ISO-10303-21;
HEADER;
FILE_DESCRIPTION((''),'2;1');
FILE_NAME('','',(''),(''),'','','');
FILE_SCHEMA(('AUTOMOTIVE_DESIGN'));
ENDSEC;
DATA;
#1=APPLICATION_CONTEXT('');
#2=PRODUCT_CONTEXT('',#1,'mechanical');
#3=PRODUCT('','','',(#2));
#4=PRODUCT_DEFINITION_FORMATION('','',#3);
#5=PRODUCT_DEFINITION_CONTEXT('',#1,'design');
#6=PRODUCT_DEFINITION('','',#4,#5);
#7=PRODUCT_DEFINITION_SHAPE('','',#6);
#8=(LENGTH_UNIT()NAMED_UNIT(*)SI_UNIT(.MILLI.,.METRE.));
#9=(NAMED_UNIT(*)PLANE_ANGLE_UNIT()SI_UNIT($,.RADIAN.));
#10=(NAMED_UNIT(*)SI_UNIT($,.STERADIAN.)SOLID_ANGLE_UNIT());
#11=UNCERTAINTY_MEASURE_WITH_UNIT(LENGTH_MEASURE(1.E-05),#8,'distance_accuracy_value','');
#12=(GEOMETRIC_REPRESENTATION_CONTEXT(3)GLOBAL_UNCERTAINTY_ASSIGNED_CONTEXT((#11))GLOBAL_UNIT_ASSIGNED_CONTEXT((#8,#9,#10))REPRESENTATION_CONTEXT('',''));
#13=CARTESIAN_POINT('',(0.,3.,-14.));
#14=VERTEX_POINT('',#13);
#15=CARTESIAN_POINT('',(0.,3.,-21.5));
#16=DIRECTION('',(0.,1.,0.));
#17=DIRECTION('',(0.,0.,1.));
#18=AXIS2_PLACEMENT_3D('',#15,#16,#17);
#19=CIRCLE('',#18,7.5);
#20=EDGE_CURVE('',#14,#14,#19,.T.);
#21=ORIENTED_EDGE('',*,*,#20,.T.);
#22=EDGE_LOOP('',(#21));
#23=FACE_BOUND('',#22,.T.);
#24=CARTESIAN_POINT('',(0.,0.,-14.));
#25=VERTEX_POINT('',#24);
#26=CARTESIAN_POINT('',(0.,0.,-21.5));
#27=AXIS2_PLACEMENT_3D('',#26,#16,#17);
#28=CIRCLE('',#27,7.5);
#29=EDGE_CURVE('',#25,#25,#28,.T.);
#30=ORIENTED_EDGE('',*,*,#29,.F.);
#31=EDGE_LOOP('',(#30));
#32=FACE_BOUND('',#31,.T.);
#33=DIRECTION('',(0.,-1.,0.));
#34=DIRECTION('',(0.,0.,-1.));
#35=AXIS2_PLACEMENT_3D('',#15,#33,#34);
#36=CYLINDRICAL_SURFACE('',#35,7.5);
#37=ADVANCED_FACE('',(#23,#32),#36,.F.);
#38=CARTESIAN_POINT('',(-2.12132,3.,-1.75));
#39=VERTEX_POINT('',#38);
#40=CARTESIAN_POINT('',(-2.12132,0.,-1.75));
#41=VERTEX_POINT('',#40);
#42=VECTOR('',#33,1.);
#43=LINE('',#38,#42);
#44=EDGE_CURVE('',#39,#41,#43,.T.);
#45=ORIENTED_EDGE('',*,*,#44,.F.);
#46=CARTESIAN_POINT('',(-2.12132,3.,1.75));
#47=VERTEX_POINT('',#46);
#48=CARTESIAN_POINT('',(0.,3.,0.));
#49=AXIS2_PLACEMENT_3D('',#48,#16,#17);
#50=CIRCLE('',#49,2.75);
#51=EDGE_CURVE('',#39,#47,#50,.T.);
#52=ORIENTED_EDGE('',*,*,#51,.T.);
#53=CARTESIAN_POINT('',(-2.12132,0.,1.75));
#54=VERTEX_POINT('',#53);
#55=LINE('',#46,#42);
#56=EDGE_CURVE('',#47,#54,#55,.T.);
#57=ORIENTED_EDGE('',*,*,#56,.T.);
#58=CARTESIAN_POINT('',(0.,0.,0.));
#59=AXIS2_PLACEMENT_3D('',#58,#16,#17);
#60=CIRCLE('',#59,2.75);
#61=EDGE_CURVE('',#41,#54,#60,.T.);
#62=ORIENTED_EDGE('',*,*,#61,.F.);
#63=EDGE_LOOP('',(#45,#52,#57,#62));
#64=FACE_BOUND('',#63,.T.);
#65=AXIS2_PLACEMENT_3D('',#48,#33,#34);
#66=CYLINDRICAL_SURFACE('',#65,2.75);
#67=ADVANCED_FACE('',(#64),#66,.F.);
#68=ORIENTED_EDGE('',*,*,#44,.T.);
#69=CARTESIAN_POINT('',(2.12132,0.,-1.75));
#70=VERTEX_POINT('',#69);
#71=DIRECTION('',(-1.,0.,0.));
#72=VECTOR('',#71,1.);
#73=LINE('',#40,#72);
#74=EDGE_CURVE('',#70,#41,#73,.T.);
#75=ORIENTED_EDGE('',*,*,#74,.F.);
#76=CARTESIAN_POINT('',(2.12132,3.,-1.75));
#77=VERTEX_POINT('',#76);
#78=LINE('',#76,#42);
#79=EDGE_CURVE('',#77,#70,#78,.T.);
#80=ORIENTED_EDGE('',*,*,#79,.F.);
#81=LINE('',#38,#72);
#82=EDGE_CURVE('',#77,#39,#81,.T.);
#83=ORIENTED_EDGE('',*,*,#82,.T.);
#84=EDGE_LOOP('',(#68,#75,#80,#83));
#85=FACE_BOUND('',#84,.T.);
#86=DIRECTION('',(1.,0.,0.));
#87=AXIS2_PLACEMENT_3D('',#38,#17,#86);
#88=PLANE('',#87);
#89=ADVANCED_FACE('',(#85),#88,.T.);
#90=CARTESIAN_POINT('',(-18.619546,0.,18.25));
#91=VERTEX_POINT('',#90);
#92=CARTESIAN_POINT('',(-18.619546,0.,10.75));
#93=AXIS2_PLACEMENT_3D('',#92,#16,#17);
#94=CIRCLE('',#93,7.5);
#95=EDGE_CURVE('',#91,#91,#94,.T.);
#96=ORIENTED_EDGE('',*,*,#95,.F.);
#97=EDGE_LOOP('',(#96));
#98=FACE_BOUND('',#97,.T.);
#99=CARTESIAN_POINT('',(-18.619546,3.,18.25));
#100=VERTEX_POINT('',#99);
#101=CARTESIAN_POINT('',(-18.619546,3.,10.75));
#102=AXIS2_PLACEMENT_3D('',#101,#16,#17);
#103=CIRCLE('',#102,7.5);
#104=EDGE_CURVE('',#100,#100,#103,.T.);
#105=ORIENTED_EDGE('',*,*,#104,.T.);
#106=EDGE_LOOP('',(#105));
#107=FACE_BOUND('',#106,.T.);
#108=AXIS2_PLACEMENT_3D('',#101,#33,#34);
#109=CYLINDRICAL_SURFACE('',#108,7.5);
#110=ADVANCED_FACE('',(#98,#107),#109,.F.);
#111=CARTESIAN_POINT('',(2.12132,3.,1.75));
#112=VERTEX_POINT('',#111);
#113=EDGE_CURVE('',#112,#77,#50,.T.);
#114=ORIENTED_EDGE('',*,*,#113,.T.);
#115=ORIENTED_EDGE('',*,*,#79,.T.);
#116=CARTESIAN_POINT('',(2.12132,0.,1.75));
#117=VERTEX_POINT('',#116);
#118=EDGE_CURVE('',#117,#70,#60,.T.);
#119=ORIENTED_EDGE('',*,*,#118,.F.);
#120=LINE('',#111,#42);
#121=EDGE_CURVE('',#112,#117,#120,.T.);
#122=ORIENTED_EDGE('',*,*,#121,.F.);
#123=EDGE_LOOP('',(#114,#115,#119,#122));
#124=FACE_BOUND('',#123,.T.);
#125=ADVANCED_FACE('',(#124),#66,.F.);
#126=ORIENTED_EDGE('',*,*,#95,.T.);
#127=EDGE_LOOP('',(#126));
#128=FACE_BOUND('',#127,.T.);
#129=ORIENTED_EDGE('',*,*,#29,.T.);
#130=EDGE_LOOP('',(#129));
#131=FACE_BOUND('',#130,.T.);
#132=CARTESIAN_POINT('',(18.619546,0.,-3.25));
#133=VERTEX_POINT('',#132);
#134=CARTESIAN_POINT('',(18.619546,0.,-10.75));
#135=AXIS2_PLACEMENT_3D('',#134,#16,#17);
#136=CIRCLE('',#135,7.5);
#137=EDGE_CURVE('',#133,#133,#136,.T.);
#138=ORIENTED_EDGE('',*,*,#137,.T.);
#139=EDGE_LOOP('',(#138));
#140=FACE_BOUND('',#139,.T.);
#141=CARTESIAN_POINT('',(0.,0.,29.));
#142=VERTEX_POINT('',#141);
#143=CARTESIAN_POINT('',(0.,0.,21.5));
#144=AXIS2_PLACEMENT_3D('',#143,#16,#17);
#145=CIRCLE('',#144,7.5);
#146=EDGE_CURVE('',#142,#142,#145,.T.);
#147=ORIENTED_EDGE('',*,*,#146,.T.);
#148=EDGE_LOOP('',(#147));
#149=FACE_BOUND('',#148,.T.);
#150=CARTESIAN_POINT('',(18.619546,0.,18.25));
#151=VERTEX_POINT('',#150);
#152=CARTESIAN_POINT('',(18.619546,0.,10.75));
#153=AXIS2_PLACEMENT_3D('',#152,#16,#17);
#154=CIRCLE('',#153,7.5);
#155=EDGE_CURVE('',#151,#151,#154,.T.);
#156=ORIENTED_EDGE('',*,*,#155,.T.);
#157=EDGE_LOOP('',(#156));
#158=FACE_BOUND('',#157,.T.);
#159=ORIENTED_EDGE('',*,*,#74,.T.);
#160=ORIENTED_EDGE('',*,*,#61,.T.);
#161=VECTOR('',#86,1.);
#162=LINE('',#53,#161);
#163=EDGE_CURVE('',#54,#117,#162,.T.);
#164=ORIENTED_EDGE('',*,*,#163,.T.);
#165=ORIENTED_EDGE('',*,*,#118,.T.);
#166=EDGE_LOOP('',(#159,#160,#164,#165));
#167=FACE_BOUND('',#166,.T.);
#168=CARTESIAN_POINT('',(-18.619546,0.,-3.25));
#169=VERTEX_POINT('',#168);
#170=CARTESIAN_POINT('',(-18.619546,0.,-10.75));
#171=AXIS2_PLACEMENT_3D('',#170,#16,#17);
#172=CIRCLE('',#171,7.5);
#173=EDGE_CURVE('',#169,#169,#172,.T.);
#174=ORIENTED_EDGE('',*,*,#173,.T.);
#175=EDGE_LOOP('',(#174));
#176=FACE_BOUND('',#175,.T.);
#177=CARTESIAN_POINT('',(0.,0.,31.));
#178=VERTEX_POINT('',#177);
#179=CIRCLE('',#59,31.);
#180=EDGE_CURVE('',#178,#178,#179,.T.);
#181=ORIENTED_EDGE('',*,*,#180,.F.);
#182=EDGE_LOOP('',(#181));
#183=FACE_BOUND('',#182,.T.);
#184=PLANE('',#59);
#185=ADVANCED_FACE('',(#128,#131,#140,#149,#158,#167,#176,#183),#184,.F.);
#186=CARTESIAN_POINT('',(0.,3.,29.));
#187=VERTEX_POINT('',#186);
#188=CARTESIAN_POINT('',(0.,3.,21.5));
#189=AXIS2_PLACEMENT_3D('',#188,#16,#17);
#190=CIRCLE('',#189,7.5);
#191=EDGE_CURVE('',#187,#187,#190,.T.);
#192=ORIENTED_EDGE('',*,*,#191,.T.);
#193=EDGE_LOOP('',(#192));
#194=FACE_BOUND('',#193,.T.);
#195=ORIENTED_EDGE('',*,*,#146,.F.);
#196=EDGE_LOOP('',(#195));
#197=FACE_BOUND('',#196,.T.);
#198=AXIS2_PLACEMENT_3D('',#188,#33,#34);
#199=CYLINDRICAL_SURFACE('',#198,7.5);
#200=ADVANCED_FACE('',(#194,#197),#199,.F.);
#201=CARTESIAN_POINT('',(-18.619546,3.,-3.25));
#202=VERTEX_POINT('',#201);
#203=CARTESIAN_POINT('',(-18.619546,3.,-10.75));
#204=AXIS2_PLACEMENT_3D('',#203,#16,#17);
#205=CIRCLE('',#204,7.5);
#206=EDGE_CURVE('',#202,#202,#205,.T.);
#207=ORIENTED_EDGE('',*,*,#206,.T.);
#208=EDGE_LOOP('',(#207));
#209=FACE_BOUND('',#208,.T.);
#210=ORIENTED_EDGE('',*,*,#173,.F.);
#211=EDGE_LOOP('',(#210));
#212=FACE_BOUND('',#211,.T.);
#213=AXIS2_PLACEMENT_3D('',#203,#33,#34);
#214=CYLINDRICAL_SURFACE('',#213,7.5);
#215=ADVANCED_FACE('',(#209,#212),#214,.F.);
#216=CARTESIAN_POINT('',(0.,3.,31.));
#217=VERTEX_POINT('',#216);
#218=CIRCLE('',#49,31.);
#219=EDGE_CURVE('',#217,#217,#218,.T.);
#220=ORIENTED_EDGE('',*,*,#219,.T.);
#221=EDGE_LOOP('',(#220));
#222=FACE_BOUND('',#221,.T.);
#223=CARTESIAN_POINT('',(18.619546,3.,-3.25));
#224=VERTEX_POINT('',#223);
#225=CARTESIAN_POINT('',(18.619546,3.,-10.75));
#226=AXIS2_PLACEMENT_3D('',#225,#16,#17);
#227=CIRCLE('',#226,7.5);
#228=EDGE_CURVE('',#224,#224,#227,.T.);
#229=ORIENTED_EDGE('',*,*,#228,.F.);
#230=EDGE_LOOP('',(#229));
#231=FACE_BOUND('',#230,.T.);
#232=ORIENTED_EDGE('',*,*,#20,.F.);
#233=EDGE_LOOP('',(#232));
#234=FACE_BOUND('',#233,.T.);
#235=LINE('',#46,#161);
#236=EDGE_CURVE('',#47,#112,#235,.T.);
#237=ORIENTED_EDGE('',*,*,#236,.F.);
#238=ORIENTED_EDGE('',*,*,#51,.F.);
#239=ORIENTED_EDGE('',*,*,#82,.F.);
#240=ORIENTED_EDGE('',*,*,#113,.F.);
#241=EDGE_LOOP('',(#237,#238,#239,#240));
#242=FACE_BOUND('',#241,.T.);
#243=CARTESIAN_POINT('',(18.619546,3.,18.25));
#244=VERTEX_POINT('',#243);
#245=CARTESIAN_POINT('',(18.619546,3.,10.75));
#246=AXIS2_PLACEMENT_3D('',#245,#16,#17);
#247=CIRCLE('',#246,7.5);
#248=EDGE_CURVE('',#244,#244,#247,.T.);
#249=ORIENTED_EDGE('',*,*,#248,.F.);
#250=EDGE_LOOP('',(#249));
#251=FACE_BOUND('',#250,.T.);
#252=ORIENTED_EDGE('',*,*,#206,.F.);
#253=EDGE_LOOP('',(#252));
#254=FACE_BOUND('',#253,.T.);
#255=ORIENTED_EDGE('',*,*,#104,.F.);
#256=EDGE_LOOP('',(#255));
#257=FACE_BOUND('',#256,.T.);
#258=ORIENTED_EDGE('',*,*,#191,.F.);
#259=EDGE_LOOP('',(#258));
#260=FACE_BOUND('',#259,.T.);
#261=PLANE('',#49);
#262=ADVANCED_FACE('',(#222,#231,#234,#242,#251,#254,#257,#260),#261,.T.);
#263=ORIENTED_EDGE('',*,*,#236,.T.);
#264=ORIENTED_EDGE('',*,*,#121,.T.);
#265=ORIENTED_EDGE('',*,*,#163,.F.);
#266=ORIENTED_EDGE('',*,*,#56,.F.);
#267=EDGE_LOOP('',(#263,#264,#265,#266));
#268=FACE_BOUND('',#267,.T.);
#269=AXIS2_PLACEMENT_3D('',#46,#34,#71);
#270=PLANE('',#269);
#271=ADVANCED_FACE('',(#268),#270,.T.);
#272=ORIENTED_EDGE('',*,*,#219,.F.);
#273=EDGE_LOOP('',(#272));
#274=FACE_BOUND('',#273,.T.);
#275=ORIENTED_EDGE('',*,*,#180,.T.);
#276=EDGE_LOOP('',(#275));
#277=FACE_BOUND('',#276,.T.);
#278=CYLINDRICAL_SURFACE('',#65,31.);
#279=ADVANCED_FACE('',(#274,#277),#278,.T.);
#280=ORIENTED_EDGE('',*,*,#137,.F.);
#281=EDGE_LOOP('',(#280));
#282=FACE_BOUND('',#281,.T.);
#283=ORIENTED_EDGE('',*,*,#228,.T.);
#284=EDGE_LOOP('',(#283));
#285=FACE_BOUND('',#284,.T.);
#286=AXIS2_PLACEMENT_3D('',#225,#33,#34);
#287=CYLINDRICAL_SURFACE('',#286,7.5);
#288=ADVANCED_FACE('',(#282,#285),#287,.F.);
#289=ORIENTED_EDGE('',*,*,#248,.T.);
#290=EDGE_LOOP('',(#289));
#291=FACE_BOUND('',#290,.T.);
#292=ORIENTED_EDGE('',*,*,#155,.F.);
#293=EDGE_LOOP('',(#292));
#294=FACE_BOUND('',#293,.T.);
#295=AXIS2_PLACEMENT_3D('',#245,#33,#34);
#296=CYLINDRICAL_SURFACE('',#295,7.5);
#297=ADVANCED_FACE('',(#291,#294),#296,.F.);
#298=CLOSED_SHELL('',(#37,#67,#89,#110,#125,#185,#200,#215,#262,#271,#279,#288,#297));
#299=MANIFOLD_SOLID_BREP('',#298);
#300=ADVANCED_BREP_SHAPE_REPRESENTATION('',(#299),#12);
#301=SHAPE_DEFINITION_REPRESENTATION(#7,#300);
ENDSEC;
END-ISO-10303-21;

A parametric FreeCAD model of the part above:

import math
import FreeCAD as App
import Part
import Sketcher
from FreeCAD import Vector

doc = App.newDocument("Part")
body = doc.addObject("PartDesign::Body", "Body")

sketch1 = doc.addObject("Sketcher::SketchObject", "Sketch")
body.addObject(sketch1)
sketch1.AttachmentSupport = (doc.XZ_Plane, [""])
sketch1.MapMode = "FlatFace"
sketch1.addGeometry([
    Part.Circle(Vector(0, 0, 0), Vector(0, 0, 1), 31),
    Part.Circle(Vector(-18.6, 10.8, 0), Vector(0, 0, 1), 7.5),
    Part.Circle(Vector(0, 21.5, 0), Vector(0, 0, 1), 7.5),
    Part.Circle(Vector(18.6, 10.8, 0), Vector(0, 0, 1), 7.5),
    Part.Circle(Vector(-18.6, -10.8, 0), Vector(0, 0, 1), 7.5),
    Part.ArcOfCircle(Part.Circle(Vector(0, 0, 0), Vector(0, 0, 1), 2.8), math.radians(140), math.radians(220)),
    Part.LineSegment(Vector(-2.1, -1.8, 0), Vector(2.1, -1.8, 0)),
    Part.ArcOfCircle(Part.Circle(Vector(0, 0, 0), Vector(0, 0, 1), 2.8), math.radians(-40), math.radians(40)),
    Part.LineSegment(Vector(2.1, 1.8, 0), Vector(-2.1, 1.8, 0)),
    Part.Circle(Vector(18.6, -10.8, 0), Vector(0, 0, 1), 7.5),
    Part.Circle(Vector(0, -21.5, 0), Vector(0, 0, 1), 7.5),
], False)
sketch1.addConstraint([
    Sketcher.Constraint("Coincident", 5, 2, 6, 1),
    Sketcher.Constraint("Coincident", 6, 2, 7, 1),
    Sketcher.Constraint("Coincident", 7, 2, 8, 1),
    Sketcher.Constraint("Coincident", 8, 2, 5, 1),
    Sketcher.Constraint("Horizontal", 6),
    Sketcher.Constraint("Horizontal", 8),
    Sketcher.Constraint("Coincident", 0, 3, -1, 1),
    Sketcher.Constraint("Coincident", 5, 3, -1, 1),
    Sketcher.Constraint("Coincident", 7, 3, -1, 1),
    Sketcher.Constraint("Equal", 1, 2),
    Sketcher.Constraint("Equal", 2, 3),
    Sketcher.Constraint("Equal", 3, 4),
    Sketcher.Constraint("Equal", 5, 7),
    Sketcher.Constraint("Equal", 4, 9),
    Sketcher.Constraint("Equal", 9, 10),
    Sketcher.Constraint("Symmetric", 3, 3, 4, 3, -1, 1),
    Sketcher.Constraint("Symmetric", 1, 3, 9, 3, -1, 1),
    Sketcher.Constraint("Symmetric", 2, 3, 10, 3, -1, 1),
    Sketcher.Constraint("Symmetric", 1, 3, 3, 3, -2),
    Sketcher.Constraint("PointOnObject", 2, 3, -2),
    Sketcher.Constraint("Vertical", 6, 2, 7, 2),
    Sketcher.Constraint("Diameter", 0, 62.0),
    Sketcher.Constraint("Diameter", 1, 15.0),
    Sketcher.Constraint("Radius", 5, 2.75),
    Sketcher.Constraint("DistanceY", 4, 3, 5, 2, 9.0),
    Sketcher.Constraint("DistanceY", -1, 1, 2, 3, 21.5),
    Sketcher.Constraint("DistanceY", 4, 3, 1, 3, 21.5),
    Sketcher.Constraint("DistanceX", 1, 3, -1, 1, 18.619546),
])
pad1 = doc.addObject("PartDesign::Pad", "Pad")
body.addObject(pad1)
pad1.Profile = sketch1
pad1.Length = 3
pad1.Reversed = True

doc.recompute()
